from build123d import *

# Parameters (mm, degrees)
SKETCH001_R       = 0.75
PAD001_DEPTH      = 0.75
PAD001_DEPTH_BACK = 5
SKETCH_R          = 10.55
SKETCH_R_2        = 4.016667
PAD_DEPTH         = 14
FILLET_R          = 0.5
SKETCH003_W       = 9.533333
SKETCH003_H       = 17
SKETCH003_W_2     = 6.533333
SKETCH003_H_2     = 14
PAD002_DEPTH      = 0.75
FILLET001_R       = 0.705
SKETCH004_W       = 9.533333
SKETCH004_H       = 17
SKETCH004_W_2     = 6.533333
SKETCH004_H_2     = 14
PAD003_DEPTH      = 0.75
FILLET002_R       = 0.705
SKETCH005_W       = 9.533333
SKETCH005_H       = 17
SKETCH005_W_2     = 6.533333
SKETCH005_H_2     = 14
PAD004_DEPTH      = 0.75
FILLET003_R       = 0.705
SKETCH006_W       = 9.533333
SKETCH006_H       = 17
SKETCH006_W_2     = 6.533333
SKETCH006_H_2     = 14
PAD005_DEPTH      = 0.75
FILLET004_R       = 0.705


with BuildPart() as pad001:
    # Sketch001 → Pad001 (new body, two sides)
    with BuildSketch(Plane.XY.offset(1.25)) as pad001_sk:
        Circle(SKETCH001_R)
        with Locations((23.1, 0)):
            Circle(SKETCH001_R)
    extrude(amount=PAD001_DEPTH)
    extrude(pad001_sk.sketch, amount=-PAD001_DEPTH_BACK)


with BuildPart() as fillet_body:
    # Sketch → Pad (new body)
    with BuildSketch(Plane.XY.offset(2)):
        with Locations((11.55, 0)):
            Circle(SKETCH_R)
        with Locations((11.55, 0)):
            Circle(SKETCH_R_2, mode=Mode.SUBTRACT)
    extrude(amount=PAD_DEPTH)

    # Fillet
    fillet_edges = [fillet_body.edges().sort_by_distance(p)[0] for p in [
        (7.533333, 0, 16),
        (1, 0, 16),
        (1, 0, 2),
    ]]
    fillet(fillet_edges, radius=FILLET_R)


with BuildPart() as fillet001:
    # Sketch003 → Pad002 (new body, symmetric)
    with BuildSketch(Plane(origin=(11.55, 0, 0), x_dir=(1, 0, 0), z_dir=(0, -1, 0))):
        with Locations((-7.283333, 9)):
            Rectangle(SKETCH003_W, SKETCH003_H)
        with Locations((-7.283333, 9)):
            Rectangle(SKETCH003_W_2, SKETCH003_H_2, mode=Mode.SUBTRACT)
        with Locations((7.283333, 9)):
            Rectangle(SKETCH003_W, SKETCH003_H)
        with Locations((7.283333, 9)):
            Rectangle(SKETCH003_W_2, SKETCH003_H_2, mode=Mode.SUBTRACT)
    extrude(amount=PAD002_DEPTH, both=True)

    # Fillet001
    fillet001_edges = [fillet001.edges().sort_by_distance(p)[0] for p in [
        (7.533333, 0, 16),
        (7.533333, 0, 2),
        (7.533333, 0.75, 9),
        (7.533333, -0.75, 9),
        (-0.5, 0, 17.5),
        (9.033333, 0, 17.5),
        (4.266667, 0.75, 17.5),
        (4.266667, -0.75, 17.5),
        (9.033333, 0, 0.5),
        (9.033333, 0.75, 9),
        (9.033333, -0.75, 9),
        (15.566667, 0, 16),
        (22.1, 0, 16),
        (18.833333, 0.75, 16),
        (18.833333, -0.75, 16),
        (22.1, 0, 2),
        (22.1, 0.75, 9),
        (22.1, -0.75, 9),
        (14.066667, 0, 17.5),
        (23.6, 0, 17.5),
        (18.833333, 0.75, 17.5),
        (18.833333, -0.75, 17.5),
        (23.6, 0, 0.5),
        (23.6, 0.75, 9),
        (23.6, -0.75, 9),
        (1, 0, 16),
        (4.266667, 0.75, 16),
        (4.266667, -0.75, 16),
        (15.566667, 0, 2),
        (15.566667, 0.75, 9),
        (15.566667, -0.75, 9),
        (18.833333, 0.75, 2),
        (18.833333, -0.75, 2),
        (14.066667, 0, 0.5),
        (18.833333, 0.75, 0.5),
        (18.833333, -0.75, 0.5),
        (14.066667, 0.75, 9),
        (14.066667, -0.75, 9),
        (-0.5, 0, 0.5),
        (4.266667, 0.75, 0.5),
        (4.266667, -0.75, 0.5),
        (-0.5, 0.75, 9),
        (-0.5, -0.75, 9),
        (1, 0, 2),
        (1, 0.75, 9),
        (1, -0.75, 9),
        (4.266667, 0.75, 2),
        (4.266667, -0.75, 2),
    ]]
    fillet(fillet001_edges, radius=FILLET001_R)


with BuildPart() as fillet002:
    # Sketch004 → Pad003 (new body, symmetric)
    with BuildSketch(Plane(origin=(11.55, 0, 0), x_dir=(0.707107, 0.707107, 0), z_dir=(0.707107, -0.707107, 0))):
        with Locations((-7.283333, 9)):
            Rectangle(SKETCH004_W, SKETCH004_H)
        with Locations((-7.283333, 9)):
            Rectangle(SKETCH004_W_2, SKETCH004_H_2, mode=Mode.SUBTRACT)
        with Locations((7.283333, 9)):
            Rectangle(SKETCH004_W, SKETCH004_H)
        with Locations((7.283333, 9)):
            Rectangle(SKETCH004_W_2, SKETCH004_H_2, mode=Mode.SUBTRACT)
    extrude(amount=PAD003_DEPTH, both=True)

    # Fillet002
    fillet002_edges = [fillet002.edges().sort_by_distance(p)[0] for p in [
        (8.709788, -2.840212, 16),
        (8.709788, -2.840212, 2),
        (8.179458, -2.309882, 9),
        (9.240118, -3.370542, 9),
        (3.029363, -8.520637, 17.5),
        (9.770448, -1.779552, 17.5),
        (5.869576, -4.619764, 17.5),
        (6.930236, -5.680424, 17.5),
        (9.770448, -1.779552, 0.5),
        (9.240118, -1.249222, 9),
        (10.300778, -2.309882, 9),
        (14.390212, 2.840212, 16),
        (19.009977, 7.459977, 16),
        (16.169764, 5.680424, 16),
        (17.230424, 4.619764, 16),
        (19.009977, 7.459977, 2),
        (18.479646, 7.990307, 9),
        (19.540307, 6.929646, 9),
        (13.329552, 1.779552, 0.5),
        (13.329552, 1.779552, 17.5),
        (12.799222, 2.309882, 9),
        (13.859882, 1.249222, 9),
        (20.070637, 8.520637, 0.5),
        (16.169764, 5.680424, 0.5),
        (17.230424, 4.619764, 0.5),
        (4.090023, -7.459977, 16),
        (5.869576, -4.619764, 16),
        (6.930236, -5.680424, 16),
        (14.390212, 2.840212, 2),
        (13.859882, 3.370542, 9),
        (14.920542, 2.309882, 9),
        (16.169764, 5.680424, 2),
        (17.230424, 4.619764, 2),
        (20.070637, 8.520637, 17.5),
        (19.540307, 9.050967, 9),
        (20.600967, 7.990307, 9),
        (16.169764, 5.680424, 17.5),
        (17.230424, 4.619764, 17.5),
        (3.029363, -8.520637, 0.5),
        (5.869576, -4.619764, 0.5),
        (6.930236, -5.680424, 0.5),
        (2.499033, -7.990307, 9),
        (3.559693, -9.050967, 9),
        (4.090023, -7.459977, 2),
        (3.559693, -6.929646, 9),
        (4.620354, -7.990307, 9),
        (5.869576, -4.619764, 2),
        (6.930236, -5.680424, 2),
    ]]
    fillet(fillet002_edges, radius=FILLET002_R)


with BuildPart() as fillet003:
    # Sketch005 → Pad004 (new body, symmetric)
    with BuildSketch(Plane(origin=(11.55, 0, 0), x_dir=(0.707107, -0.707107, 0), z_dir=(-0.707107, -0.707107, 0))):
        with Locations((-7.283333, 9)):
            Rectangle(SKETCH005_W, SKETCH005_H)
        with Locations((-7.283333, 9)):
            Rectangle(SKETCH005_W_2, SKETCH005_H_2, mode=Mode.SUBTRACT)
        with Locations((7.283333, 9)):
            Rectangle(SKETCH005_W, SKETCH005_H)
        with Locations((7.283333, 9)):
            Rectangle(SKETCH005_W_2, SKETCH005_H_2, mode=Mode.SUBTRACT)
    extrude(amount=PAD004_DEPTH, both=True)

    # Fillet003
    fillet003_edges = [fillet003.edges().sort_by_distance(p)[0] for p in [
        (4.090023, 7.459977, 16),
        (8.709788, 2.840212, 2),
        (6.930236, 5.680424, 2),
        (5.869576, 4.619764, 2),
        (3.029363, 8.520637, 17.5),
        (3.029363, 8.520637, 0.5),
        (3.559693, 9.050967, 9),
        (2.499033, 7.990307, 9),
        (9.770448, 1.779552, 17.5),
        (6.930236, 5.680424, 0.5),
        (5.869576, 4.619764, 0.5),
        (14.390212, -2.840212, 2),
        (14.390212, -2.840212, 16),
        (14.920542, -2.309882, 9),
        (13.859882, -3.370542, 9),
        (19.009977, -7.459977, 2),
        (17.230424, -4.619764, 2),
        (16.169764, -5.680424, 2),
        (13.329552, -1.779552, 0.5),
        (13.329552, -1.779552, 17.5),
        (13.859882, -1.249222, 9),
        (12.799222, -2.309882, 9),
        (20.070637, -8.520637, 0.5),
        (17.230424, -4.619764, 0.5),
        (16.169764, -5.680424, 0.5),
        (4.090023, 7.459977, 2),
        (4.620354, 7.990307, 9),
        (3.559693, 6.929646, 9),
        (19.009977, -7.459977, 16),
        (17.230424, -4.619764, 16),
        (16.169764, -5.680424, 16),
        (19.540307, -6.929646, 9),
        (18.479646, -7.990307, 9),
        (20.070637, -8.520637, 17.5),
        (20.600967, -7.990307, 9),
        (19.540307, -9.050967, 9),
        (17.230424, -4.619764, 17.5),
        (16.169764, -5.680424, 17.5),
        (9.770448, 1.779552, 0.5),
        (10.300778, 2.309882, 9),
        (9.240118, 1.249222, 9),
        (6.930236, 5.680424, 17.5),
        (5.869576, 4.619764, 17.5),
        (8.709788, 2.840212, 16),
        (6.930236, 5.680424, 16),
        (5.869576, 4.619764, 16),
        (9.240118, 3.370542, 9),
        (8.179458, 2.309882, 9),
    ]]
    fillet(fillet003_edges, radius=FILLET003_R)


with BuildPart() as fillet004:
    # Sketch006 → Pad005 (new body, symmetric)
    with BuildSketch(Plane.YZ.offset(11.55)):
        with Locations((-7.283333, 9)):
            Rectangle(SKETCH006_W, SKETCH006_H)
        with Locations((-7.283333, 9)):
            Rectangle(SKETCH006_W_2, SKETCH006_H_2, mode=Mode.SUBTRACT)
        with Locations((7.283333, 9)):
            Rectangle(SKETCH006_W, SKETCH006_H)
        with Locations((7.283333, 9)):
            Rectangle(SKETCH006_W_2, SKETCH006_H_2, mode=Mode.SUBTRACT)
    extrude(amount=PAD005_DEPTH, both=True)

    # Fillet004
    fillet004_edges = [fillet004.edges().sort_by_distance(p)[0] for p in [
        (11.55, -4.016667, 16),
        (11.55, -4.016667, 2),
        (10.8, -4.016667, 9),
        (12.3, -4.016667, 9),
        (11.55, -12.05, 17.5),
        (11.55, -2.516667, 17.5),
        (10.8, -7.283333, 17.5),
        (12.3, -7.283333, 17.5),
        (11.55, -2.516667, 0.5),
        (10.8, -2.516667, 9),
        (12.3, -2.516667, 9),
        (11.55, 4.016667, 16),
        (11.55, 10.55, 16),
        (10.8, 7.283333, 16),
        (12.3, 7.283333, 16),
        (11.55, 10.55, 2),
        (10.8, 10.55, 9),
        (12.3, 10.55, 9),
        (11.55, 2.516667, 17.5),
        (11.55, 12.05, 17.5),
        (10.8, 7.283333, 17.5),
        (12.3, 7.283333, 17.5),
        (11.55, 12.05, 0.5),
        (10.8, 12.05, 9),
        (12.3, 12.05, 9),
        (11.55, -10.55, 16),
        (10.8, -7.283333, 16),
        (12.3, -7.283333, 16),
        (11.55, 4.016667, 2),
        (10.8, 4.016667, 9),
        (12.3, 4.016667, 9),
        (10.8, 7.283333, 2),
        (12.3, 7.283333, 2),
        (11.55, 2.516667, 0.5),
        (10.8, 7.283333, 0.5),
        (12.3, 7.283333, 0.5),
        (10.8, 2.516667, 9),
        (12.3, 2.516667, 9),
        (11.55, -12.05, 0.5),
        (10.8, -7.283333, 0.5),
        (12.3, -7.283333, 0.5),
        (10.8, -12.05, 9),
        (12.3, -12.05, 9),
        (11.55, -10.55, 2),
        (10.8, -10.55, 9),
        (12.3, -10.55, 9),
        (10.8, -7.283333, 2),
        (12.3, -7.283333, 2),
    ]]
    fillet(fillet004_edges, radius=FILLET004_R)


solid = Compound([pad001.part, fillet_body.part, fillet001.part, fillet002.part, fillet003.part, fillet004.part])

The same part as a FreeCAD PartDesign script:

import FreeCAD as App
import Part
import Sketcher

V = App.Vector
Q = App.Units.Quantity


def edges_at(feature, points):
    """Names of the edges that pass closest to the given points."""
    edges = feature.Shape.Edges
    near = lambda p: min(range(len(edges)), key=lambda i: edges[i].distToShape(Part.Vertex(*p))[0])
    return sorted({f"Edge{near(p) + 1}" for p in points})

doc = App.newDocument("Part")
body = doc.addObject("PartDesign::Body", "Body")
body.AllowCompound = True

# Sketch on XY plane
sketch1 = body.newObject("Sketcher::SketchObject", "Sketch")
sketch1.AttachmentSupport = (doc.getObject("XY_Plane"), [""])
sketch1.MapMode = "FlatFace"
sketch1.AttachmentOffset = App.Placement(V(0, 0, 1.25), App.Rotation())
sketch1.addGeometry(Part.Circle(V(0, 0, 0), V(0, 0, 1), 0.8), False)
sketch1.addGeometry(Part.Circle(V(23.1, 0, 0), V(0, 0, 1), 0.8), False)
sketch1.addConstraint(Sketcher.Constraint("Coincident", 0, 3, -1, 1))
sketch1.addConstraint(Sketcher.Constraint("Equal", 0, 1))
sketch1.addConstraint(Sketcher.Constraint("PointOnObject", 1, 3, -1))
sketch1.addConstraint(Sketcher.Constraint("Diameter", 0, Q("1.5 mm")))
sketch1.addConstraint(Sketcher.Constraint("DistanceX", -1, 1, 1, 3, Q("23.1 mm")))
pad1 = body.newObject("PartDesign::Pad", "Pad")
pad1.Profile = sketch1
pad1.Type = "TwoLengths"
pad1.Length = 0.75
pad1.Length2 = 5
body2 = doc.addObject("PartDesign::Body", "Body001")

# Sketch on XY plane
sketch2 = body2.newObject("Sketcher::SketchObject", "Sketch001")
sketch2.AttachmentSupport = (doc.getObject("XY_Plane001"), [""])
sketch2.MapMode = "FlatFace"
sketch2.AttachmentOffset = App.Placement(V(0, 0, 2), App.Rotation())
sketch2.addGeometry(Part.Circle(V(11.6, 0, 0), V(0, 0, 1), 10.6), False)
sketch2.addGeometry(Part.Circle(V(11.6, 0, 0), V(0, 0, 1), 4), False)
sketch2.addConstraint(Sketcher.Constraint("Coincident", 1, 3, 0, 3))
sketch2.addConstraint(Sketcher.Constraint("PointOnObject", 0, 3, -1))
sketch2.addConstraint(Sketcher.Constraint("Diameter", 0, Q("21.1 mm")))
sketch2.addConstraint(Sketcher.Constraint("DistanceX", -1, 1, 0, 3, Q("11.55 mm")))
sketch2.addConstraint(Sketcher.Constraint("Diameter", 1, Q("8.033334 mm")))
pad2 = body2.newObject("PartDesign::Pad", "Pad001")
pad2.Profile = sketch2
pad2.Length = 14
doc.recompute()

fillet = body2.newObject("PartDesign::Fillet", "Fillet")
fillet.Base = (pad2, edges_at(pad2, [(7.533, 0, 16), (1, 0, 16), (1, 0, 2)]))
fillet.Radius = 0.5
body3 = doc.addObject("PartDesign::Body", "Body002")
body3.AllowCompound = True

# Sketch on XZ plane
sketch3 = body3.newObject("Sketcher::SketchObject", "Sketch002")
sketch3.AttachmentSupport = (doc.getObject("XZ_Plane002"), [""])
sketch3.MapMode = "FlatFace"
sketch3.addGeometry(Part.LineSegment(V(0, 18, 0), V(0, 0, 0)), False)
sketch3.addGeometry(Part.LineSegment(V(0, 0, 0), V(9, 0, 0)), False)
sketch3.addGeometry(Part.LineSegment(V(9, 0, 0), V(9, 18, 0)), False)
sketch3.addGeometry(Part.LineSegment(V(9, 18, 0), V(0, 18, 0)), False)
sketch3.addGeometry(Part.LineSegment(V(8, 2, 0), V(1, 2, 0)), False)
sketch3.addGeometry(Part.LineSegment(V(1, 2, 0), V(1, 16, 0)), False)
sketch3.addGeometry(Part.LineSegment(V(1, 16, 0), V(8, 16, 0)), False)
sketch3.addGeometry(Part.LineSegment(V(8, 16, 0), V(8, 2, 0)), False)
sketch3.addGeometry(Part.LineSegment(V(14, 18, 0), V(14, 0, 0)), False)
sketch3.addGeometry(Part.LineSegment(V(14, 0, 0), V(24, 0, 0)), False)
sketch3.addGeometry(Part.LineSegment(V(24, 0, 0), V(24, 18, 0)), False)
sketch3.addGeometry(Part.LineSegment(V(24, 18, 0), V(14, 18, 0)), False)
sketch3.addGeometry(Part.LineSegment(V(22, 2, 0), V(16, 2, 0)), False)
sketch3.addGeometry(Part.LineSegment(V(16, 2, 0), V(16, 16, 0)), False)
sketch3.addGeometry(Part.LineSegment(V(16, 16, 0), V(22, 16, 0)), False)
sketch3.addGeometry(Part.LineSegment(V(22, 16, 0), V(22, 2, 0)), False)
sketch3.addConstraint(Sketcher.Constraint("Coincident", 0, 2, 1, 1))
sketch3.addConstraint(Sketcher.Constraint("Coincident", 1, 2, 2, 1))
sketch3.addConstraint(Sketcher.Constraint("Coincident", 2, 2, 3, 1))
sketch3.addConstraint(Sketcher.Constraint("Coincident", 3, 2, 0, 1))
sketch3.addConstraint(Sketcher.Constraint("Coincident", 4, 2, 5, 1))
sketch3.addConstraint(Sketcher.Constraint("Coincident", 5, 2, 6, 1))
sketch3.addConstraint(Sketcher.Constraint("Coincident", 6, 2, 7, 1))
sketch3.addConstraint(Sketcher.Constraint("Coincident", 7, 2, 4, 1))
sketch3.addConstraint(Sketcher.Constraint("Coincident", 8, 2, 9, 1))
sketch3.addConstraint(Sketcher.Constraint("Coincident", 9, 2, 10, 1))
sketch3.addConstraint(Sketcher.Constraint("Coincident", 10, 2, 11, 1))
sketch3.addConstraint(Sketcher.Constraint("Coincident", 11, 2, 8, 1))
sketch3.addConstraint(Sketcher.Constraint("Coincident", 12, 2, 13, 1))
sketch3.addConstraint(Sketcher.Constraint("Coincident", 13, 2, 14, 1))
sketch3.addConstraint(Sketcher.Constraint("Coincident", 14, 2, 15, 1))
sketch3.addConstraint(Sketcher.Constraint("Coincident", 15, 2, 12, 1))
sketch3.addConstraint(Sketcher.Constraint("Vertical", 0))
sketch3.addConstraint(Sketcher.Constraint("Horizontal", 1))
sketch3.addConstraint(Sketcher.Constraint("Vertical", 2))
sketch3.addConstraint(Sketcher.Constraint("Horizontal", 3))
sketch3.addConstraint(Sketcher.Constraint("Horizontal", 4))
sketch3.addConstraint(Sketcher.Constraint("Vertical", 5))
sketch3.addConstraint(Sketcher.Constraint("Horizontal", 6))
sketch3.addConstraint(Sketcher.Constraint("Vertical", 7))
sketch3.addConstraint(Sketcher.Constraint("Vertical", 8))
sketch3.addConstraint(Sketcher.Constraint("Horizontal", 9))
sketch3.addConstraint(Sketcher.Constraint("Vertical", 10))
sketch3.addConstraint(Sketcher.Constraint("Horizontal", 11))
sketch3.addConstraint(Sketcher.Constraint("Horizontal", 12))
sketch3.addConstraint(Sketcher.Constraint("Vertical", 13))
sketch3.addConstraint(Sketcher.Constraint("Horizontal", 14))
sketch3.addConstraint(Sketcher.Constraint("Vertical", 15))
sketch3.addConstraint(Sketcher.Constraint("Horizontal", 1, 2, 8, 2))
sketch3.addConstraint(Sketcher.Constraint("Horizontal", 3, 2, 10, 2))
sketch3.addConstraint(Sketcher.Constraint("Horizontal", 7, 2, 12, 2))
sketch3.addConstraint(Sketcher.Constraint("Horizontal", 6, 2, 13, 2))
sketch3.addConstraint(Sketcher.Constraint("Equal", 3, 9))
sketch3.addConstraint(Sketcher.Constraint("Equal", 6, 12))
sketch3.addConstraint(Sketcher.Constraint("DistanceY", 0, 2, 0, 1, Q("17 mm")))
sketch3.addConstraint(Sketcher.Constraint("DistanceY", 5, 1, 5, 2, Q("14 mm")))
sketch3.addConstraint(Sketcher.Constraint("DistanceX", -1, 1, 4, 2, Q("1.000001 mm")))
sketch3.addConstraint(Sketcher.Constraint("DistanceY", -1, 1, 4, 2, Q("2 mm")))
sketch3.addConstraint(Sketcher.Constraint("DistanceX", 0, 2, -1, 1, Q("0.499999 mm")))
sketch3.addConstraint(Sketcher.Constraint("DistanceY", -1, 1, 0, 2, Q("0.5 mm")))
sketch3.addConstraint(Sketcher.Constraint("DistanceX", -1, 1, 9, 2, Q("23.599999 mm")))
sketch3.addConstraint(Sketcher.Constraint("DistanceX", -1, 1, 14, 2, Q("22.099999 mm")))
sketch3.addConstraint(Sketcher.Constraint("DistanceX", 6, 2, 2, 2, Q("1.5 mm")))
sketch3.addConstraint(Sketcher.Constraint("DistanceX", 1, 1, 1, 2, Q("9.533333 mm")))
pad3 = body3.newObject("PartDesign::Pad", "Pad002")
pad3.Profile = sketch3
pad3.Length = 1.5
pad3.Midplane = True
doc.recompute()

fillet2 = body3.newObject("PartDesign::Fillet", "Fillet001")
fillet2.Base = (pad3, ["Edge1"])
fillet2.UseAllEdges = True
fillet2.Radius = 0.705
body4 = doc.addObject("PartDesign::Body", "Body003")
body4.AllowCompound = True

# Sketch on an angled plane
sketch4 = body4.newObject("Sketcher::SketchObject", "Sketch003")
sketch4.Placement = App.Placement(V(11.55, 0, 0), App.Rotation(V(0.707106781, 0.707106781, 0), V(0, 0, 0.999999999), V(0.707106781, -0.707106781, 0), "ZXY"))
sketch4.addGeometry(Part.LineSegment(V(-12, 17, 0), V(-12, 0, 0)), False)
sketch4.addGeometry(Part.LineSegment(V(-12, 0, 0), V(-3, 0, 0)), False)
sketch4.addGeometry(Part.LineSegment(V(-3, 0, 0), V(-3, 17, 0)), False)
sketch4.addGeometry(Part.LineSegment(V(-3, 17, 0), V(-12, 17, 0)), False)
sketch4.addGeometry(Part.LineSegment(V(-4, 2, 0), V(-11, 2, 0)), False)
sketch4.addGeometry(Part.LineSegment(V(-11, 2, 0), V(-11, 16, 0)), False)
sketch4.addGeometry(Part.LineSegment(V(-11, 16, 0), V(-4, 16, 0)), False)
sketch4.addGeometry(Part.LineSegment(V(-4, 16, 0), V(-4, 2, 0)), False)
sketch4.addGeometry(Part.LineSegment(V(3, 17, 0), V(3, 0, 0)), False)
sketch4.addGeometry(Part.LineSegment(V(3, 0, 0), V(12, 0, 0)), False)
sketch4.addGeometry(Part.LineSegment(V(12, 0, 0), V(12, 17, 0)), False)
sketch4.addGeometry(Part.LineSegment(V(12, 17, 0), V(3, 17, 0)), False)
sketch4.addGeometry(Part.LineSegment(V(11, 2, 0), V(4, 2, 0)), False)
sketch4.addGeometry(Part.LineSegment(V(4, 2, 0), V(4, 16, 0)), False)
sketch4.addGeometry(Part.LineSegment(V(4, 16, 0), V(11, 16, 0)), False)
sketch4.addGeometry(Part.LineSegment(V(11, 16, 0), V(11, 2, 0)), False)
sketch4.addConstraint(Sketcher.Constraint("Coincident", 0, 2, 1, 1))
sketch4.addConstraint(Sketcher.Constraint("Coincident", 1, 2, 2, 1))
sketch4.addConstraint(Sketcher.Constraint("Coincident", 2, 2, 3, 1))
sketch4.addConstraint(Sketcher.Constraint("Coincident", 3, 2, 0, 1))
sketch4.addConstraint(Sketcher.Constraint("Coincident", 4, 2, 5, 1))
sketch4.addConstraint(Sketcher.Constraint("Coincident", 5, 2, 6, 1))
sketch4.addConstraint(Sketcher.Constraint("Coincident", 6, 2, 7, 1))
sketch4.addConstraint(Sketcher.Constraint("Coincident", 7, 2, 4, 1))
sketch4.addConstraint(Sketcher.Constraint("Coincident", 8, 2, 9, 1))
sketch4.addConstraint(Sketcher.Constraint("Coincident", 9, 2, 10, 1))
sketch4.addConstraint(Sketcher.Constraint("Coincident", 10, 2, 11, 1))
sketch4.addConstraint(Sketcher.Constraint("Coincident", 11, 2, 8, 1))
sketch4.addConstraint(Sketcher.Constraint("Coincident", 12, 2, 13, 1))
sketch4.addConstraint(Sketcher.Constraint("Coincident", 13, 2, 14, 1))
sketch4.addConstraint(Sketcher.Constraint("Coincident", 14, 2, 15, 1))
sketch4.addConstraint(Sketcher.Constraint("Coincident", 15, 2, 12, 1))
sketch4.addConstraint(Sketcher.Constraint("Vertical", 0))
sketch4.addConstraint(Sketcher.Constraint("Horizontal", 1))
sketch4.addConstraint(Sketcher.Constraint("Vertical", 2))
sketch4.addConstraint(Sketcher.Constraint("Horizontal", 3))
sketch4.addConstraint(Sketcher.Constraint("Horizontal", 4))
sketch4.addConstraint(Sketcher.Constraint("Vertical", 5))
sketch4.addConstraint(Sketcher.Constraint("Horizontal", 6))
sketch4.addConstraint(Sketcher.Constraint("Vertical", 7))
sketch4.addConstraint(Sketcher.Constraint("Vertical", 8))
sketch4.addConstraint(Sketcher.Constraint("Horizontal", 9))
sketch4.addConstraint(Sketcher.Constraint("Vertical", 10))
sketch4.addConstraint(Sketcher.Constraint("Horizontal", 11))
sketch4.addConstraint(Sketcher.Constraint("Horizontal", 12))
sketch4.addConstraint(Sketcher.Constraint("Vertical", 13))
sketch4.addConstraint(Sketcher.Constraint("Horizontal", 14))
sketch4.addConstraint(Sketcher.Constraint("Vertical", 15))
sketch4.addConstraint(Sketcher.Constraint("Symmetric", 1, 2, 8, 2, -2))
sketch4.addConstraint(Sketcher.Constraint("Symmetric", 3, 2, 10, 2, -2))
sketch4.addConstraint(Sketcher.Constraint("Symmetric", 7, 2, 12, 2, -2))
sketch4.addConstraint(Sketcher.Constraint("Symmetric", 5, 2, 14, 2, -2))
sketch4.addConstraint(Sketcher.Constraint("DistanceY", 0, 2, 0, 1, Q("17 mm")))
sketch4.addConstraint(Sketcher.Constraint("DistanceY", 5, 1, 5, 2, Q("14 mm")))
sketch4.addConstraint(Sketcher.Constraint("DistanceY", -1, 1, 4, 2, Q("2 mm")))
sketch4.addConstraint(Sketcher.Constraint("DistanceY", -1, 1, 0, 2, Q("0.5 mm")))
sketch4.addConstraint(Sketcher.Constraint("DistanceX", 0, 2, 4, 2, Q("1.5 mm")))
sketch4.addConstraint(Sketcher.Constraint("DistanceX", 6, 2, 2, 2, Q("1.5 mm")))
sketch4.addConstraint(Sketcher.Constraint("DistanceX", 0, 2, -1, 1, Q("12.049999 mm")))
sketch4.addConstraint(Sketcher.Constraint("DistanceX", 1, 1, 1, 2, Q("9.533333 mm")))
pad4 = body4.newObject("PartDesign::Pad", "Pad003")
pad4.Profile = sketch4
pad4.Length = 1.5
pad4.Midplane = True
doc.recompute()

fillet3 = body4.newObject("PartDesign::Fillet", "Fillet002")
fillet3.Base = (pad4, ["Edge1"])
fillet3.UseAllEdges = True
fillet3.Radius = 0.705
body5 = doc.addObject("PartDesign::Body", "Body004")
body5.AllowCompound = True

# Sketch on an angled plane
sketch5 = body5.newObject("Sketcher::SketchObject", "Sketch004")
sketch5.Placement = App.Placement(V(11.55, 0, 0), App.Rotation(V(0.707106781, -0.707106781, 0), V(0, 0, 0.999999999), V(-0.707106781, -0.707106781, 0), "ZXY"))
sketch5.addGeometry(Part.LineSegment(V(-12, 17, 0), V(-12, 0, 0)), False)
sketch5.addGeometry(Part.LineSegment(V(-12, 0, 0), V(-3, 0, 0)), False)
sketch5.addGeometry(Part.LineSegment(V(-3, 0, 0), V(-3, 17, 0)), False)
sketch5.addGeometry(Part.LineSegment(V(-3, 17, 0), V(-12, 17, 0)), False)
sketch5.addGeometry(Part.LineSegment(V(-4, 2, 0), V(-11, 2, 0)), False)
sketch5.addGeometry(Part.LineSegment(V(-11, 2, 0), V(-11, 16, 0)), False)
sketch5.addGeometry(Part.LineSegment(V(-11, 16, 0), V(-4, 16, 0)), False)
sketch5.addGeometry(Part.LineSegment(V(-4, 16, 0), V(-4, 2, 0)), False)
sketch5.addGeometry(Part.LineSegment(V(3, 17, 0), V(3, 0, 0)), False)
sketch5.addGeometry(Part.LineSegment(V(3, 0, 0), V(12, 0, 0)), False)
sketch5.addGeometry(Part.LineSegment(V(12, 0, 0), V(12, 17, 0)), False)
sketch5.addGeometry(Part.LineSegment(V(12, 17, 0), V(3, 17, 0)), False)
sketch5.addGeometry(Part.LineSegment(V(11, 2, 0), V(4, 2, 0)), False)
sketch5.addGeometry(Part.LineSegment(V(4, 2, 0), V(4, 16, 0)), False)
sketch5.addGeometry(Part.LineSegment(V(4, 16, 0), V(11, 16, 0)), False)
sketch5.addGeometry(Part.LineSegment(V(11, 16, 0), V(11, 2, 0)), False)
sketch5.addConstraint(Sketcher.Constraint("Coincident", 0, 2, 1, 1))
sketch5.addConstraint(Sketcher.Constraint("Coincident", 1, 2, 2, 1))
sketch5.addConstraint(Sketcher.Constraint("Coincident", 2, 2, 3, 1))
sketch5.addConstraint(Sketcher.Constraint("Coincident", 3, 2, 0, 1))
sketch5.addConstraint(Sketcher.Constraint("Coincident", 4, 2, 5, 1))
sketch5.addConstraint(Sketcher.Constraint("Coincident", 5, 2, 6, 1))
sketch5.addConstraint(Sketcher.Constraint("Coincident", 6, 2, 7, 1))
sketch5.addConstraint(Sketcher.Constraint("Coincident", 7, 2, 4, 1))
sketch5.addConstraint(Sketcher.Constraint("Coincident", 8, 2, 9, 1))
sketch5.addConstraint(Sketcher.Constraint("Coincident", 9, 2, 10, 1))
sketch5.addConstraint(Sketcher.Constraint("Coincident", 10, 2, 11, 1))
sketch5.addConstraint(Sketcher.Constraint("Coincident", 11, 2, 8, 1))
sketch5.addConstraint(Sketcher.Constraint("Coincident", 12, 2, 13, 1))
sketch5.addConstraint(Sketcher.Constraint("Coincident", 13, 2, 14, 1))
sketch5.addConstraint(Sketcher.Constraint("Coincident", 14, 2, 15, 1))
sketch5.addConstraint(Sketcher.Constraint("Coincident", 15, 2, 12, 1))
sketch5.addConstraint(Sketcher.Constraint("Vertical", 0))
sketch5.addConstraint(Sketcher.Constraint("Horizontal", 1))
sketch5.addConstraint(Sketcher.Constraint("Vertical", 2))
sketch5.addConstraint(Sketcher.Constraint("Horizontal", 3))
sketch5.addConstraint(Sketcher.Constraint("Horizontal", 4))
sketch5.addConstraint(Sketcher.Constraint("Vertical", 5))
sketch5.addConstraint(Sketcher.Constraint("Horizontal", 6))
sketch5.addConstraint(Sketcher.Constraint("Vertical", 7))
sketch5.addConstraint(Sketcher.Constraint("Vertical", 8))
sketch5.addConstraint(Sketcher.Constraint("Horizontal", 9))
sketch5.addConstraint(Sketcher.Constraint("Vertical", 10))
sketch5.addConstraint(Sketcher.Constraint("Horizontal", 11))
sketch5.addConstraint(Sketcher.Constraint("Horizontal", 12))
sketch5.addConstraint(Sketcher.Constraint("Vertical", 13))
sketch5.addConstraint(Sketcher.Constraint("Horizontal", 14))
sketch5.addConstraint(Sketcher.Constraint("Vertical", 15))
sketch5.addConstraint(Sketcher.Constraint("Symmetric", 1, 2, 8, 2, -2))
sketch5.addConstraint(Sketcher.Constraint("Symmetric", 3, 2, 10, 2, -2))
sketch5.addConstraint(Sketcher.Constraint("Symmetric", 7, 2, 12, 2, -2))
sketch5.addConstraint(Sketcher.Constraint("Symmetric", 5, 2, 14, 2, -2))
sketch5.addConstraint(Sketcher.Constraint("DistanceY", 0, 2, 0, 1, Q("17 mm")))
sketch5.addConstraint(Sketcher.Constraint("DistanceY", 5, 1, 5, 2, Q("14 mm")))
sketch5.addConstraint(Sketcher.Constraint("DistanceY", -1, 1, 4, 2, Q("2 mm")))
sketch5.addConstraint(Sketcher.Constraint("DistanceY", -1, 1, 0, 2, Q("0.5 mm")))
sketch5.addConstraint(Sketcher.Constraint("DistanceX", 0, 2, 4, 2, Q("1.5 mm")))
sketch5.addConstraint(Sketcher.Constraint("DistanceX", 6, 2, 2, 2, Q("1.5 mm")))
sketch5.addConstraint(Sketcher.Constraint("DistanceX", 0, 2, -1, 1, Q("12.049999 mm")))
sketch5.addConstraint(Sketcher.Constraint("DistanceX", 1, 1, 1, 2, Q("9.533333 mm")))
pad5 = body5.newObject("PartDesign::Pad", "Pad004")
pad5.Profile = sketch5
pad5.Length = 1.5
pad5.Midplane = True
doc.recompute()

fillet4 = body5.newObject("PartDesign::Fillet", "Fillet003")
fillet4.Base = (pad5, ["Edge1"])
fillet4.UseAllEdges = True
fillet4.Radius = 0.705
body6 = doc.addObject("PartDesign::Body", "Body005")
body6.AllowCompound = True

# Sketch on YZ plane
sketch6 = body6.newObject("Sketcher::SketchObject", "Sketch005")
sketch6.AttachmentSupport = (doc.getObject("YZ_Plane005"), [""])
sketch6.MapMode = "FlatFace"
sketch6.AttachmentOffset = App.Placement(V(0, 0, 11.55), App.Rotation())
sketch6.addGeometry(Part.LineSegment(V(-12, 18, 0), V(-12, 0, 0)), False)
sketch6.addGeometry(Part.LineSegment(V(-12, 0, 0), V(-3, 0, 0)), False)
sketch6.addGeometry(Part.LineSegment(V(-3, 0, 0), V(-3, 18, 0)), False)
sketch6.addGeometry(Part.LineSegment(V(-3, 18, 0), V(-12, 18, 0)), False)
sketch6.addGeometry(Part.LineSegment(V(-4, 2, 0), V(-11, 2, 0)), False)
sketch6.addGeometry(Part.LineSegment(V(-11, 2, 0), V(-11, 16, 0)), False)
sketch6.addGeometry(Part.LineSegment(V(-11, 16, 0), V(-4, 16, 0)), False)
sketch6.addGeometry(Part.LineSegment(V(-4, 16, 0), V(-4, 2, 0)), False)
sketch6.addGeometry(Part.LineSegment(V(3, 18, 0), V(3, 0, 0)), False)
sketch6.addGeometry(Part.LineSegment(V(3, 0, 0), V(12, 0, 0)), False)
sketch6.addGeometry(Part.LineSegment(V(12, 0, 0), V(12, 18, 0)), False)
sketch6.addGeometry(Part.LineSegment(V(12, 18, 0), V(3, 18, 0)), False)
sketch6.addGeometry(Part.LineSegment(V(11, 2, 0), V(4, 2, 0)), False)
sketch6.addGeometry(Part.LineSegment(V(4, 2, 0), V(4, 16, 0)), False)
sketch6.addGeometry(Part.LineSegment(V(4, 16, 0), V(11, 16, 0)), False)
sketch6.addGeometry(Part.LineSegment(V(11, 16, 0), V(11, 2, 0)), False)
sketch6.addConstraint(Sketcher.Constraint("Coincident", 0, 2, 1, 1))
sketch6.addConstraint(Sketcher.Constraint("Coincident", 1, 2, 2, 1))
sketch6.addConstraint(Sketcher.Constraint("Coincident", 2, 2, 3, 1))
sketch6.addConstraint(Sketcher.Constraint("Coincident", 3, 2, 0, 1))
sketch6.addConstraint(Sketcher.Constraint("Coincident", 4, 2, 5, 1))
sketch6.addConstraint(Sketcher.Constraint("Coincident", 5, 2, 6, 1))
sketch6.addConstraint(Sketcher.Constraint("Coincident", 6, 2, 7, 1))
sketch6.addConstraint(Sketcher.Constraint("Coincident", 7, 2, 4, 1))
sketch6.addConstraint(Sketcher.Constraint("Coincident", 8, 2, 9, 1))
sketch6.addConstraint(Sketcher.Constraint("Coincident", 9, 2, 10, 1))
sketch6.addConstraint(Sketcher.Constraint("Coincident", 10, 2, 11, 1))
sketch6.addConstraint(Sketcher.Constraint("Coincident", 11, 2, 8, 1))
sketch6.addConstraint(Sketcher.Constraint("Coincident", 12, 2, 13, 1))
sketch6.addConstraint(Sketcher.Constraint("Coincident", 13, 2, 14, 1))
sketch6.addConstraint(Sketcher.Constraint("Coincident", 14, 2, 15, 1))
sketch6.addConstraint(Sketcher.Constraint("Coincident", 15, 2, 12, 1))
sketch6.addConstraint(Sketcher.Constraint("Vertical", 0))
sketch6.addConstraint(Sketcher.Constraint("Horizontal", 1))
sketch6.addConstraint(Sketcher.Constraint("Vertical", 2))
sketch6.addConstraint(Sketcher.Constraint("Horizontal", 3))
sketch6.addConstraint(Sketcher.Constraint("Horizontal", 4))
sketch6.addConstraint(Sketcher.Constraint("Vertical", 5))
sketch6.addConstraint(Sketcher.Constraint("Horizontal", 6))
sketch6.addConstraint(Sketcher.Constraint("Vertical", 7))
sketch6.addConstraint(Sketcher.Constraint("Vertical", 8))
sketch6.addConstraint(Sketcher.Constraint("Horizontal", 9))
sketch6.addConstraint(Sketcher.Constraint("Vertical", 10))
sketch6.addConstraint(Sketcher.Constraint("Horizontal", 11))
sketch6.addConstraint(Sketcher.Constraint("Horizontal", 12))
sketch6.addConstraint(Sketcher.Constraint("Vertical", 13))
sketch6.addConstraint(Sketcher.Constraint("Horizontal", 14))
sketch6.addConstraint(Sketcher.Constraint("Vertical", 15))
sketch6.addConstraint(Sketcher.Constraint("Symmetric", 1, 2, 8, 2, -2))
sketch6.addConstraint(Sketcher.Constraint("Symmetric", 3, 2, 10, 2, -2))
sketch6.addConstraint(Sketcher.Constraint("Symmetric", 7, 2, 12, 2, -2))
sketch6.addConstraint(Sketcher.Constraint("Symmetric", 5, 2, 14, 2, -2))
sketch6.addConstraint(Sketcher.Constraint("DistanceY", 0, 2, 0, 1, Q("17 mm")))
sketch6.addConstraint(Sketcher.Constraint("DistanceY", 5, 1, 5, 2, Q("14 mm")))
sketch6.addConstraint(Sketcher.Constraint("DistanceY", -1, 1, 4, 2, Q("2 mm")))
sketch6.addConstraint(Sketcher.Constraint("DistanceY", -1, 1, 0, 2, Q("0.5 mm")))
sketch6.addConstraint(Sketcher.Constraint("DistanceX", 0, 2, 4, 2, Q("1.5 mm")))
sketch6.addConstraint(Sketcher.Constraint("DistanceX", 6, 2, 2, 2, Q("1.5 mm")))
sketch6.addConstraint(Sketcher.Constraint("DistanceX", 0, 2, -1, 1, Q("12.05 mm")))
sketch6.addConstraint(Sketcher.Constraint("DistanceX", 1, 1, 1, 2, Q("9.533333 mm")))
pad6 = body6.newObject("PartDesign::Pad", "Pad005")
pad6.Profile = sketch6
pad6.Length = 1.5
pad6.Midplane = True
doc.recompute()

fillet5 = body6.newObject("PartDesign::Fillet", "Fillet004")
fillet5.Base = (pad6, ["Edge1"])
fillet5.UseAllEdges = True
fillet5.Radius = 0.705

doc.recompute()
